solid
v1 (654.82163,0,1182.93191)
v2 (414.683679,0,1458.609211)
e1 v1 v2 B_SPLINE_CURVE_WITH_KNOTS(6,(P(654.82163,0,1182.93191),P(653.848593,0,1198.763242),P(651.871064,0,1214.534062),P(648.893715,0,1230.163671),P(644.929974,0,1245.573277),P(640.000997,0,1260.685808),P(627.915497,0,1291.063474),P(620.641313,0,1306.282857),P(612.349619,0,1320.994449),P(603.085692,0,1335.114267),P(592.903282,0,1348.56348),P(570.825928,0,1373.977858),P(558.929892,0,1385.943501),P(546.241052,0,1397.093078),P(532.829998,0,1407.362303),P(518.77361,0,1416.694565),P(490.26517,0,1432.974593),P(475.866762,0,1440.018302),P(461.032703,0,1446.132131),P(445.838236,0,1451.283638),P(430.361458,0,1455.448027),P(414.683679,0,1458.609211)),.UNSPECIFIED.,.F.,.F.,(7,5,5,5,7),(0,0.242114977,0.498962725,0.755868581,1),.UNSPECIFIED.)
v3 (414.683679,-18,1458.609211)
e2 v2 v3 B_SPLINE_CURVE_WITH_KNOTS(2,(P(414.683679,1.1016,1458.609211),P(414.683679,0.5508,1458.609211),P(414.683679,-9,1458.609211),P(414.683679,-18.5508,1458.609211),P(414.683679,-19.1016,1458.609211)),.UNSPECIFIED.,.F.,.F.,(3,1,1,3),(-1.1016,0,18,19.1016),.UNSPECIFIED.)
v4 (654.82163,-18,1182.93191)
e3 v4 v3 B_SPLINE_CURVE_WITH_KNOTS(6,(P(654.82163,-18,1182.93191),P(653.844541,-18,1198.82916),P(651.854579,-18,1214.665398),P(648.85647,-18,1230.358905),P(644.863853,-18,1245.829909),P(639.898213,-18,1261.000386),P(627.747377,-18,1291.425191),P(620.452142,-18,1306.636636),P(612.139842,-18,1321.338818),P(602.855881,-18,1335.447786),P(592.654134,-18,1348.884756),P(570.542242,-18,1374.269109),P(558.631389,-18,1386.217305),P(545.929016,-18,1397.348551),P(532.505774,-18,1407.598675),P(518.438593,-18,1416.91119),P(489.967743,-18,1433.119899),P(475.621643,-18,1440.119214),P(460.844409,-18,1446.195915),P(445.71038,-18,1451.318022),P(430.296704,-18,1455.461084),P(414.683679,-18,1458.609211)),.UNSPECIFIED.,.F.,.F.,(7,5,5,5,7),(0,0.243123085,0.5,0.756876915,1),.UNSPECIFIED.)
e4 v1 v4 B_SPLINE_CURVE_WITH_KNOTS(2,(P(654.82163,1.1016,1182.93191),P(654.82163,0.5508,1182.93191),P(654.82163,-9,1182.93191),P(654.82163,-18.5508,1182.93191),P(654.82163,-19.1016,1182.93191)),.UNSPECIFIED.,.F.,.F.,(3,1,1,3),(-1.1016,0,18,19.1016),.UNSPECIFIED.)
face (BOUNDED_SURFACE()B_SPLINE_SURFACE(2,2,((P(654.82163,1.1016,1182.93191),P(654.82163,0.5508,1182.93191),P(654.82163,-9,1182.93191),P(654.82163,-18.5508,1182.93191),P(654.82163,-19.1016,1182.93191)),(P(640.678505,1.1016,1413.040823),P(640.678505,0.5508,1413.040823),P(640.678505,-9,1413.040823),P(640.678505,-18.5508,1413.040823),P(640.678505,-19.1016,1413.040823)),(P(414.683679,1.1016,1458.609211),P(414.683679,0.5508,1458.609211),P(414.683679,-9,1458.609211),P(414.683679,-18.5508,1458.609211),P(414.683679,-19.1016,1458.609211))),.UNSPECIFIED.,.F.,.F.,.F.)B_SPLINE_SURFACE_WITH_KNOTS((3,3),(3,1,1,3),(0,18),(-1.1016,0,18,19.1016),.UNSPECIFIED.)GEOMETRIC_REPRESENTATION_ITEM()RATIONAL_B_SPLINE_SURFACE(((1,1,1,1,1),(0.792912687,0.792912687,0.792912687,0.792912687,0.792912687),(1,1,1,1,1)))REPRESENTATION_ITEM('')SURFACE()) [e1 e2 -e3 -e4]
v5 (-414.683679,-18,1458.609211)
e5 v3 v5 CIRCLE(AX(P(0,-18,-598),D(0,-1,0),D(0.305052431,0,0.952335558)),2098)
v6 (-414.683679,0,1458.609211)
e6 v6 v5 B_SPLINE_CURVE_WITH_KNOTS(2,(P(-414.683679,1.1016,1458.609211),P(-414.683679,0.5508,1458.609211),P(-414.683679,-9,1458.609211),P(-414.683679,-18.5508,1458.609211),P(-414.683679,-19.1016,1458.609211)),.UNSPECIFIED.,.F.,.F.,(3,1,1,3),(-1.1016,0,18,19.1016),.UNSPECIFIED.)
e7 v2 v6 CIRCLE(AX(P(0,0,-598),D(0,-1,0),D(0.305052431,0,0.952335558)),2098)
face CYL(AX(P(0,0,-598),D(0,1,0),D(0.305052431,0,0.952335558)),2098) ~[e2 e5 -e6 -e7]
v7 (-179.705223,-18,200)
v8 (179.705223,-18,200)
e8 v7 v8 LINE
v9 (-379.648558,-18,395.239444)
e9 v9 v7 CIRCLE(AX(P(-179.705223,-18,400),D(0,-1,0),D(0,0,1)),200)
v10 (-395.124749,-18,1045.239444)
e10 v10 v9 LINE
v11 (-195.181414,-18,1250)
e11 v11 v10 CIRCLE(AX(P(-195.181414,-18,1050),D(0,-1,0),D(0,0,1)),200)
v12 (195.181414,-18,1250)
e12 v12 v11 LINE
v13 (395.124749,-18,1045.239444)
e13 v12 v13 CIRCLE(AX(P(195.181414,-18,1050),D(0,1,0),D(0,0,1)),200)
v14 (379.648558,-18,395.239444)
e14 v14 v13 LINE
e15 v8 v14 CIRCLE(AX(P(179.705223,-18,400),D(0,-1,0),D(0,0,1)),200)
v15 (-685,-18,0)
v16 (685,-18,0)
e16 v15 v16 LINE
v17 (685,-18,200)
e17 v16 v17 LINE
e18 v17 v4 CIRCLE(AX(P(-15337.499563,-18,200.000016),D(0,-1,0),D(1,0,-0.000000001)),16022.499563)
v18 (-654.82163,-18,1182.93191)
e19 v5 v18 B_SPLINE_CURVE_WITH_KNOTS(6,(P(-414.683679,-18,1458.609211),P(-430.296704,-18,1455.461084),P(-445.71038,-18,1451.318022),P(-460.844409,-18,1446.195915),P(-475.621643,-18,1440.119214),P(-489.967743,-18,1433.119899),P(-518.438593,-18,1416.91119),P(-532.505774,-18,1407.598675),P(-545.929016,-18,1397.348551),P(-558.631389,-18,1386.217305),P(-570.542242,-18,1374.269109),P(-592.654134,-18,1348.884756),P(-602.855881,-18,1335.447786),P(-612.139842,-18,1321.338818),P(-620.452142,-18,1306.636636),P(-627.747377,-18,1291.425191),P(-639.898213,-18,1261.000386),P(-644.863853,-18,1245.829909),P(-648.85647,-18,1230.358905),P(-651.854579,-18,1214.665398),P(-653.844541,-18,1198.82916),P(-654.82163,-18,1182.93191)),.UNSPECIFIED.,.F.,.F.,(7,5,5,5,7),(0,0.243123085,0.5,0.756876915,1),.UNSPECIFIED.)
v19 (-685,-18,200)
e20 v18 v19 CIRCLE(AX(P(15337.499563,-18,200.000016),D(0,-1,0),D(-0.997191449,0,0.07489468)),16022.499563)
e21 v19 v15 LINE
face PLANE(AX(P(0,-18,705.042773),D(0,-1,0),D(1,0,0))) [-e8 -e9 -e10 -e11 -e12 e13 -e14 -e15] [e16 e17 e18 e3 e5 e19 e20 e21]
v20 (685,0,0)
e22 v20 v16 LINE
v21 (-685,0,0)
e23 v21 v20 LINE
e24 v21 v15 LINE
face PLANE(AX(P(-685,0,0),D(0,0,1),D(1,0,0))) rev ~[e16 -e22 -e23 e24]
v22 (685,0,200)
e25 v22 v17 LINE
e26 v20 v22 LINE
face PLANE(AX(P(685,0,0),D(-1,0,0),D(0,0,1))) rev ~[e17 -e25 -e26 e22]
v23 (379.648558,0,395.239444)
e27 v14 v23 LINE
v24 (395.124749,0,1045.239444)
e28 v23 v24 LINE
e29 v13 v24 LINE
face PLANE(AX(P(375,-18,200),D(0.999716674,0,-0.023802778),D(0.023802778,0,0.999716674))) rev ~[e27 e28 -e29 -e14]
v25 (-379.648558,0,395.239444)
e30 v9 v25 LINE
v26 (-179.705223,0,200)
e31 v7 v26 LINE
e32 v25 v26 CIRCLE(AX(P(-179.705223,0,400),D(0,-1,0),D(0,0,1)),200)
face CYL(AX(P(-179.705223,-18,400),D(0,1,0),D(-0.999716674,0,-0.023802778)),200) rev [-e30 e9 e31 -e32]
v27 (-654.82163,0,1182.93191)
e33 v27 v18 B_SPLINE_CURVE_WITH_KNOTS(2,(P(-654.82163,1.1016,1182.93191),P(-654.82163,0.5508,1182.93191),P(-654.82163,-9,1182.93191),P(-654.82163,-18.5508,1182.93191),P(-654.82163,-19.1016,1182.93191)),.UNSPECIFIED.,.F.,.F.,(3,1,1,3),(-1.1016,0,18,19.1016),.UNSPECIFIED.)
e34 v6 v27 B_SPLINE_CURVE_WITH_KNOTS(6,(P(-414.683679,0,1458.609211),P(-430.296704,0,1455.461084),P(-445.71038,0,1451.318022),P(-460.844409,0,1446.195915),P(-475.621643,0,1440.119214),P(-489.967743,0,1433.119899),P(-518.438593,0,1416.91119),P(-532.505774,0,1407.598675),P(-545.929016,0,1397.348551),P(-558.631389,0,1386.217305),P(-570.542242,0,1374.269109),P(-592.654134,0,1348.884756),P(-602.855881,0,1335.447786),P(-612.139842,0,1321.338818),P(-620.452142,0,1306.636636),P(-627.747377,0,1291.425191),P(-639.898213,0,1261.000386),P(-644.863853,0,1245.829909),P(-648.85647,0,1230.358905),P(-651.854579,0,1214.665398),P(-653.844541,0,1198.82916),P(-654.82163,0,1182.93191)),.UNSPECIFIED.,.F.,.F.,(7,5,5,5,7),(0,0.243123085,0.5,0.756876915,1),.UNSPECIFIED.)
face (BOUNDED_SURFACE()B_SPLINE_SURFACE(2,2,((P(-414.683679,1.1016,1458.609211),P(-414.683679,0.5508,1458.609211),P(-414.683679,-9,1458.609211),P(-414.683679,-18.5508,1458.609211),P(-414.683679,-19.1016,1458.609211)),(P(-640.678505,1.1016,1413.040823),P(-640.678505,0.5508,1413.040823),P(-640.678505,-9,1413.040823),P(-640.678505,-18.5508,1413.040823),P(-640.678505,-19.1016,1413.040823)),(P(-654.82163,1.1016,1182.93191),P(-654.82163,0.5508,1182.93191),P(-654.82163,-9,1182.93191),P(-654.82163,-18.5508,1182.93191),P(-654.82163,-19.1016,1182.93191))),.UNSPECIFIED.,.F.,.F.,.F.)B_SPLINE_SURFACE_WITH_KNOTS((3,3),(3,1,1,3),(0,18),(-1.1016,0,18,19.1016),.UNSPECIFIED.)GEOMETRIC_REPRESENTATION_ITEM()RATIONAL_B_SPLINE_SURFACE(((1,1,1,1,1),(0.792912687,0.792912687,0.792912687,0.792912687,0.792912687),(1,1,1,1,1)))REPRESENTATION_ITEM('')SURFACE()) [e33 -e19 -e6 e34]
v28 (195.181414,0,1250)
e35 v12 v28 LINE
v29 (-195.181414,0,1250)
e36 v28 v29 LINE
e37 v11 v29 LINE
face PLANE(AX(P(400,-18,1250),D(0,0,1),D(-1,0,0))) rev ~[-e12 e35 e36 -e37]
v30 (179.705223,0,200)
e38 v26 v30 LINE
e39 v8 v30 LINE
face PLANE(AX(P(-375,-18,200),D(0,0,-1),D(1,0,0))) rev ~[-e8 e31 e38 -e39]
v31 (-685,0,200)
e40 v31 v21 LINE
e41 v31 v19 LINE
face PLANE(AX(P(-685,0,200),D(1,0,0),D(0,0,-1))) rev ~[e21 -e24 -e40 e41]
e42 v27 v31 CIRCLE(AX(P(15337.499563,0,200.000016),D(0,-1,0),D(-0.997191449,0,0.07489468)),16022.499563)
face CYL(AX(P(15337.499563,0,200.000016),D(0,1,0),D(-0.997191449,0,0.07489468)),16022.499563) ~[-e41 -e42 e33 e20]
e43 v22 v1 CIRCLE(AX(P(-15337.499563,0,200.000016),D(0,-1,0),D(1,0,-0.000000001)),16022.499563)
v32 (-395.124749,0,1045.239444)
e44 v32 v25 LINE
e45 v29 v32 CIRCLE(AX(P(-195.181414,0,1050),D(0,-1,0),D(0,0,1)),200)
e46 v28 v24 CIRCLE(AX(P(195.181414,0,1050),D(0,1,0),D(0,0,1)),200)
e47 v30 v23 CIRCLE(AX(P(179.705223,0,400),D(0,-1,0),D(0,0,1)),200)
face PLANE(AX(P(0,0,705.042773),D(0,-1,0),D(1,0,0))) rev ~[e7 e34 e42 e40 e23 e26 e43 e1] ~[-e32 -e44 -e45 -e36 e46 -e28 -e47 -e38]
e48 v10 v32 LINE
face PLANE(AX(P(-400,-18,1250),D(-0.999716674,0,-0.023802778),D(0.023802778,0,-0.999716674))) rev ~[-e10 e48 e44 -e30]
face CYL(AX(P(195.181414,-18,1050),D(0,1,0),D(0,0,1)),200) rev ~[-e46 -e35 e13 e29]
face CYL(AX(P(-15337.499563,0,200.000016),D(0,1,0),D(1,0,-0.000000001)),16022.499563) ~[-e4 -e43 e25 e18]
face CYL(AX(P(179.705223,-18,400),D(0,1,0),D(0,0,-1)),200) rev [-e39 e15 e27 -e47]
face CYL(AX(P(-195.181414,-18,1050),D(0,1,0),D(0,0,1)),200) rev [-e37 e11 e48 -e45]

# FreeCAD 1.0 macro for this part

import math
import FreeCAD as App
import Part
import Sketcher


def edges_at(feature, points):
    """Names of the edges that pass closest to the given points."""
    edges = feature.Shape.Edges
    near = lambda p: min(range(len(edges)), key=lambda i: edges[i].distToShape(Part.Vertex(*p))[0])
    return sorted({f"Edge{near(p) + 1}" for p in points})


def add_polygon(sketch, points):
    """Adds a closed chain of lines whose ends are joined by coincident constraints."""
    first, n = sketch.GeometryCount, len(points)
    for a, b in zip(points, points[1:] + points[:1]):
        sketch.addGeometry(Part.LineSegment(App.Vector(*a, 0), App.Vector(*b, 0)), False)
    for i in range(n):
        sketch.addConstraint(Sketcher.Constraint("Coincident", first + i, 2, first + (i + 1) % n, 1))

doc = App.newDocument("Part")
body = doc.addObject("PartDesign::Body", "Body")

sketch1 = body.newObject("Sketcher::SketchObject", "Sketch")
sketch1.AttachmentSupport = (doc.getObject("XZ_Plane"), [""])
sketch1.MapMode = "FlatFace"
sketch1.addGeometry([
    Part.LineSegment(App.Vector(-685, 200, 0), App.Vector(-685, 0, 0)),
    Part.LineSegment(App.Vector(-685, 0, 0), App.Vector(685, 0, 0)),
    Part.LineSegment(App.Vector(685, 0, 0), App.Vector(685, 200, 0)),
    Part.ArcOfCircle(Part.Circle(App.Vector(-15337, 200, 0), App.Vector(0, 0, 1), 16022), math.radians(0), math.radians(4.3)),
    Part.ArcOfCircle(Part.Circle(App.Vector(0, -598, 0), App.Vector(0, 0, 1), 2098), math.radians(72), math.radians(108)),
    Part.ArcOfCircle(Part.Circle(App.Vector(15337, 200, 0), App.Vector(0, 0, 1), 16022), math.radians(175.7), math.radians(180)),
], False)
sketch1.addConstraint([
    Sketcher.Constraint("Coincident", 0, 2, 1, 1),
    Sketcher.Constraint("Coincident", 1, 2, 2, 1),
    Sketcher.Constraint("Tangent", 2, 2, 3, 1),
    Sketcher.Constraint("Coincident", 3, 2, 4, 1),
    Sketcher.Constraint("Coincident", 4, 2, 5, 1),
    Sketcher.Constraint("Tangent", 5, 2, 0, 1),
    Sketcher.Constraint("Vertical", 0),
    Sketcher.Constraint("Horizontal", 1),
    Sketcher.Constraint("Vertical", 2),
    Sketcher.Constraint("Equal", 3, 5),
    Sketcher.Constraint("Symmetric", 0, 2, 1, 2, -1, 1),
    Sketcher.Constraint("PointOnObject", 4, 3, -2),
    Sketcher.Constraint("Horizontal", 3, 3, 5, 3),
    Sketcher.Constraint("Radius", 4, 2098.0),
    Sketcher.Constraint("DistanceX", 1, 1, 1, 2, 1370.0),
    Sketcher.Constraint("DistanceY", 0, 2, 0, 1, 200.0),
    Sketcher.Constraint("DistanceY", 4, 3, -1, 1, 598.0),
    Sketcher.Constraint("Radius", 3, 16022.499563),
])
pad1 = body.newObject("PartDesign::Pad", "Pad")
pad1.Profile = sketch1
pad1.Length = 18
doc.recompute()

fillet = body.newObject("PartDesign::Fillet", "Fillet")
fillet.Base = (pad1, edges_at(pad1, [(-640, -9, 1400), (640, -9, 1400)]))
fillet.Radius = 300

sketch2 = body.newObject("Sketcher::SketchObject", "Sketch001")
sketch2.AttachmentSupport = (doc.getObject("XZ_Plane"), [""])
sketch2.MapMode = "FlatFace"
sketch2.AttachmentOffset = App.Placement(App.Vector(0, 0, 18), App.Rotation())
add_polygon(sketch2, [(400, 1250), (-400, 1250), (-375, 200), (375, 200)])
sketch2.addConstraint([
    Sketcher.Constraint("Horizontal", 0),
    Sketcher.Constraint("Horizontal", 2),
    Sketcher.Constraint("Equal", 1, 3),
    Sketcher.Constraint("DistanceX", 0, 2, 0, 1, 800.0),
    Sketcher.Constraint("DistanceX", 2, 1, 2, 2, 750.0),
    Sketcher.Constraint("DistanceX", 0, 2, -1, 1, 400.0),
    Sketcher.Constraint("DistanceY", -1, 1, 0, 2, 1250.0),
    Sketcher.Constraint("DistanceY", -1, 1, 1, 2, 200.0),
])
pocket1 = body.newObject("PartDesign::Pocket", "Pocket")
pocket1.Profile = sketch2
pocket1.Length = 25
doc.recompute()

fillet2 = body.newObject("PartDesign::Fillet", "Fillet001")
fillet2.Base = (pocket1, edges_at(pocket1, [
    (400, -9, 1250),
    (-400, -9, 1250),
    (-375, -9, 200),
    (375, -9, 200),
]))
fillet2.Radius = 200

doc.recompute()
